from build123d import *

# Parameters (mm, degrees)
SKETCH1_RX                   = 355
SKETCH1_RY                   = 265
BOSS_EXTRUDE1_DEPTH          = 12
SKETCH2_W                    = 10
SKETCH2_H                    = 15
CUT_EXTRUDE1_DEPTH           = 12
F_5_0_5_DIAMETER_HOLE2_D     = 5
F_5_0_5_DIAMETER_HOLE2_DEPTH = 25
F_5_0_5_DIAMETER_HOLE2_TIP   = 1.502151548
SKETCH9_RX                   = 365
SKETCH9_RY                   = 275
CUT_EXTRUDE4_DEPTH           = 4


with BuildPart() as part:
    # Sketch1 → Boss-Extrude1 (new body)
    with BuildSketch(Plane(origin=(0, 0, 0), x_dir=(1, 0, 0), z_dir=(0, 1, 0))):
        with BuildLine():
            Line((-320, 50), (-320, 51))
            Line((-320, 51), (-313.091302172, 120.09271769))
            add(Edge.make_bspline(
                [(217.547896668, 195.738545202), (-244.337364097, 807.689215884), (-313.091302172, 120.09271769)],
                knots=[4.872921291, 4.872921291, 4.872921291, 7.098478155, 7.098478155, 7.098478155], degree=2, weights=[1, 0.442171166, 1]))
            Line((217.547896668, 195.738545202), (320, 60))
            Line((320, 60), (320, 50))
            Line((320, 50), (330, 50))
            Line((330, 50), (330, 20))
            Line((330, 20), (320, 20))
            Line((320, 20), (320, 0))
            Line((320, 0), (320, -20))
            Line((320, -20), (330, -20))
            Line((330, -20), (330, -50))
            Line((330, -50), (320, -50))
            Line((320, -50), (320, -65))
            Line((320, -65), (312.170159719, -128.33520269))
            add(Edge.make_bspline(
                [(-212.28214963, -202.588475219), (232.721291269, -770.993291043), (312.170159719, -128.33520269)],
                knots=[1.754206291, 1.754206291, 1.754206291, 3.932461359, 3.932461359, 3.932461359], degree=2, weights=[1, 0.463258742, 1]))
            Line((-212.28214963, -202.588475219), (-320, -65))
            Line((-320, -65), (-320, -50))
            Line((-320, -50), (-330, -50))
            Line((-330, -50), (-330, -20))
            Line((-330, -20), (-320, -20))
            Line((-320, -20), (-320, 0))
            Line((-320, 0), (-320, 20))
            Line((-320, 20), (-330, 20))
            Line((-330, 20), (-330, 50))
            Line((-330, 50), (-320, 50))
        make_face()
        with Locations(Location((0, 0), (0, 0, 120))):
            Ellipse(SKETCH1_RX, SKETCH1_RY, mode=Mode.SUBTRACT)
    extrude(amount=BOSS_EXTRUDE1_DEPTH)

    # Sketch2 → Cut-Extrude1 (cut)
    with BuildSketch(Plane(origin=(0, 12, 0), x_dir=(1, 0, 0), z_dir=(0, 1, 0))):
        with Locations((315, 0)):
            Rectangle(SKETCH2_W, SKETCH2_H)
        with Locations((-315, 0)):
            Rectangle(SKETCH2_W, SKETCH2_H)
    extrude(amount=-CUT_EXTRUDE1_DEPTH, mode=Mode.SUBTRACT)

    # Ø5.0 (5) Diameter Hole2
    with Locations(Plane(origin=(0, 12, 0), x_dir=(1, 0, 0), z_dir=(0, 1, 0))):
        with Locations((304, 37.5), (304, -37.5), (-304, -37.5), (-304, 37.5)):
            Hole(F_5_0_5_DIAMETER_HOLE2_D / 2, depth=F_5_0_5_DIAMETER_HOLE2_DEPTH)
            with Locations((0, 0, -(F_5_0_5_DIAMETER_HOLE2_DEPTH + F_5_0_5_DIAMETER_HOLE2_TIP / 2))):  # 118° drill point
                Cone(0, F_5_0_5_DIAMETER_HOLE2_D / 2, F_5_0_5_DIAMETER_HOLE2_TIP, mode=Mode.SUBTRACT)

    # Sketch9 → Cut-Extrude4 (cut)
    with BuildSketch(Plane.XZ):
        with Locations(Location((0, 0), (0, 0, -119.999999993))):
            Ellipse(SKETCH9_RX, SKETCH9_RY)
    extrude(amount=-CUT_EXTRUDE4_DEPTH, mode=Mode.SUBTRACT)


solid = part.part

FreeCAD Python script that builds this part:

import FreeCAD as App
import Part
import Sketcher
from FreeCAD import Vector

doc = App.newDocument("Part")
body = doc.addObject("PartDesign::Body", "Body")

# Sketch on XZ plane
sketch1 = body.newObject("Sketcher::SketchObject", "Sketch")
sketch1.AttachmentSupport = (doc.getObject("XZ_Plane"), [""])
sketch1.MapMode = "FlatFace"
sketch1.addGeometry([
    Part.LineSegment(Vector(-320, -51, 0), Vector(-320, -50, 0)),  # 0
    Part.LineSegment(Vector(-320, -50, 0), Vector(-330, -50, 0)),  # 1
    Part.LineSegment(Vector(-330, -50, 0), Vector(-330, -20, 0)),  # 2
    Part.LineSegment(Vector(-330, -20, 0), Vector(-320, -20, 0)),  # 3
    Part.LineSegment(Vector(-320, -20, 0), Vector(-320, 20, 0)),  # 4
    Part.LineSegment(Vector(-320, 20, 0), Vector(-330, 20, 0)),  # 5
    Part.LineSegment(Vector(-330, 20, 0), Vector(-330, 50, 0)),  # 6
    Part.LineSegment(Vector(-330, 50, 0), Vector(-320, 50, 0)),  # 7
    Part.LineSegment(Vector(-320, 50, 0), Vector(-320, 65, 0)),  # 8
    Part.LineSegment(Vector(-320, 65, 0), Vector(-212.28215, 202.588475, 0)),  # 9
    Part.BSplineCurve([Vector(-212.28215, 202.588475, 0), Vector(232.721291, 770.993291, 0), Vector(312.17016, 128.335203, 0)], [3, 3], [1.754206291, 3.932461359], False, 2, [1, 0.463258742, 1], False),  # 10
    Part.LineSegment(Vector(312.17016, 128.335203, 0), Vector(320, 65, 0)),  # 11
    Part.LineSegment(Vector(320, 65, 0), Vector(320, 50, 0)),  # 12
    Part.LineSegment(Vector(320, 50, 0), Vector(330, 50, 0)),  # 13
    Part.LineSegment(Vector(330, 50, 0), Vector(330, 20, 0)),  # 14
    Part.LineSegment(Vector(330, 20, 0), Vector(320, 20, 0)),  # 15
    Part.LineSegment(Vector(320, 20, 0), Vector(320, -20, 0)),  # 16
    Part.LineSegment(Vector(320, -20, 0), Vector(330, -20, 0)),  # 17
    Part.LineSegment(Vector(330, -20, 0), Vector(330, -50, 0)),  # 18
    Part.LineSegment(Vector(330, -50, 0), Vector(320, -50, 0)),  # 19
    Part.LineSegment(Vector(320, -50, 0), Vector(320, -60, 0)),  # 20
    Part.LineSegment(Vector(320, -60, 0), Vector(217.547897, -195.738545, 0)),  # 21
    Part.BSplineCurve([Vector(217.547897, -195.738545, 0), Vector(-244.337364, -807.689216, 0), Vector(-313.091302, -120.092718, 0)], [3, 3], [4.872921291, 7.098478155], False, 2, [1, 0.442171166, 1], False),  # 22
    Part.LineSegment(Vector(-313.091302, -120.092718, 0), Vector(-320, -51, 0)),  # 23
    Part.Ellipse(Vector(-177.5, -307.439018, 0), Vector(229.496732, -132.5, 0), Vector(0, 0, 0)),  # 24
], False)
sketch1.addConstraint([
    Sketcher.Constraint("Block", 10),
    Sketcher.Constraint("Block", 22),
    Sketcher.Constraint("Block", 24),
    Sketcher.Constraint("Coincident", 0, 2, 1, 1),
    Sketcher.Constraint("Coincident", 1, 2, 2, 1),
    Sketcher.Constraint("Coincident", 2, 2, 3, 1),
    Sketcher.Constraint("Coincident", 3, 2, 4, 1),
    Sketcher.Constraint("Coincident", 4, 2, 5, 1),
    Sketcher.Constraint("Coincident", 5, 2, 6, 1),
    Sketcher.Constraint("Coincident", 6, 2, 7, 1),
    Sketcher.Constraint("Coincident", 7, 2, 8, 1),
    Sketcher.Constraint("Coincident", 8, 2, 9, 1),
    Sketcher.Constraint("Coincident", 9, 2, 10, 1),
    Sketcher.Constraint("Coincident", 10, 2, 11, 1),
    Sketcher.Constraint("Coincident", 11, 2, 12, 1),
    Sketcher.Constraint("Coincident", 12, 2, 13, 1),
    Sketcher.Constraint("Coincident", 13, 2, 14, 1),
    Sketcher.Constraint("Coincident", 14, 2, 15, 1),
    Sketcher.Constraint("Coincident", 15, 2, 16, 1),
    Sketcher.Constraint("Coincident", 16, 2, 17, 1),
    Sketcher.Constraint("Coincident", 17, 2, 18, 1),
    Sketcher.Constraint("Coincident", 18, 2, 19, 1),
    Sketcher.Constraint("Coincident", 19, 2, 20, 1),
    Sketcher.Constraint("Coincident", 20, 2, 21, 1),
    Sketcher.Constraint("Coincident", 21, 2, 22, 1),
    Sketcher.Constraint("Coincident", 22, 2, 23, 1),
    Sketcher.Constraint("Coincident", 23, 2, 0, 1),
    Sketcher.Constraint("Vertical", 0),
    Sketcher.Constraint("Horizontal", 1),
    Sketcher.Constraint("Vertical", 2),
    Sketcher.Constraint("Horizontal", 3),
    Sketcher.Constraint("Vertical", 4),
    Sketcher.Constraint("Horizontal", 5),
    Sketcher.Constraint("Vertical", 6),
    Sketcher.Constraint("Horizontal", 7),
    Sketcher.Constraint("Vertical", 8),
    Sketcher.Constraint("Vertical", 12),
    Sketcher.Constraint("Horizontal", 13),
    Sketcher.Constraint("Vertical", 14),
    Sketcher.Constraint("Horizontal", 15),
    Sketcher.Constraint("Vertical", 16),
    Sketcher.Constraint("Horizontal", 17),
    Sketcher.Constraint("Vertical", 18),
    Sketcher.Constraint("Horizontal", 19),
    Sketcher.Constraint("Vertical", 20),
    Sketcher.Constraint("Symmetric", 0, 2, 12, 2, -1, 1),
    Sketcher.Constraint("Symmetric", 2, 2, 14, 2, -1, 1),
    Sketcher.Constraint("Symmetric", 4, 2, 16, 2, -1, 1),
    Sketcher.Constraint("Symmetric", 6, 2, 18, 2, -1, 1),
    Sketcher.Constraint("Symmetric", 8, 2, 11, 2, -2),
    Sketcher.Constraint("Symmetric", 6, 2, 13, 2, -2),
    Sketcher.Constraint("Horizontal", 5, 2, 14, 2),
    Sketcher.Constraint("Vertical", 0, 2, 3, 2),
    Sketcher.Constraint("Vertical", 16, 2, 19, 2),
    Sketcher.Constraint("Equal", 19, 20),
    Sketcher.Constraint("DistanceX", 1, 2, 1, 1, 10.0),
    Sketcher.Constraint("DistanceY", 0, 1, 0, 2, 1.0),
    Sketcher.Constraint("DistanceY", 2, 1, 2, 2, 30.0),
    Sketcher.Constraint("DistanceY", 4, 1, 4, 2, 40.0),
    Sketcher.Constraint("DistanceY", 8, 1, 8, 2, 15.0),
    Sketcher.Constraint("DistanceX", 0, 2, -1, 1, 320.0),
])
pad1 = body.newObject("PartDesign::Pad", "Pad")
pad1.Profile = sketch1
pad1.Length = 12
pad1.Reversed = True

# Sketch on XZ plane
sketch2 = body.newObject("Sketcher::SketchObject", "Sketch001")
sketch2.AttachmentSupport = (doc.getObject("XZ_Plane"), [""])
sketch2.MapMode = "FlatFace"
sketch2.AttachmentOffset = App.Placement(Vector(0, 0, -12), App.Rotation())
sketch2.addGeometry([
    Part.LineSegment(Vector(310, -7.5, 0), Vector(310, 7.5, 0)),  # 0
    Part.LineSegment(Vector(310, 7.5, 0), Vector(320, 7.5, 0)),  # 1
    Part.LineSegment(Vector(320, 7.5, 0), Vector(320, -7.5, 0)),  # 2
    Part.LineSegment(Vector(320, -7.5, 0), Vector(310, -7.5, 0)),  # 3
    Part.LineSegment(Vector(-320, -7.5, 0), Vector(-320, 7.5, 0)),  # 4
    Part.LineSegment(Vector(-320, 7.5, 0), Vector(-310, 7.5, 0)),  # 5
    Part.LineSegment(Vector(-310, 7.5, 0), Vector(-310, -7.5, 0)),  # 6
    Part.LineSegment(Vector(-310, -7.5, 0), Vector(-320, -7.5, 0)),  # 7
], False)
sketch2.addConstraint([
    Sketcher.Constraint("Coincident", 0, 2, 1, 1),
    Sketcher.Constraint("Coincident", 1, 2, 2, 1),
    Sketcher.Constraint("Coincident", 2, 2, 3, 1),
    Sketcher.Constraint("Coincident", 3, 2, 0, 1),
    Sketcher.Constraint("Coincident", 4, 2, 5, 1),
    Sketcher.Constraint("Coincident", 5, 2, 6, 1),
    Sketcher.Constraint("Coincident", 6, 2, 7, 1),
    Sketcher.Constraint("Coincident", 7, 2, 4, 1),
    Sketcher.Constraint("Vertical", 0),
    Sketcher.Constraint("Horizontal", 1),
    Sketcher.Constraint("Vertical", 2),
    Sketcher.Constraint("Horizontal", 3),
    Sketcher.Constraint("Vertical", 4),
    Sketcher.Constraint("Horizontal", 5),
    Sketcher.Constraint("Vertical", 6),
    Sketcher.Constraint("Horizontal", 7),
    Sketcher.Constraint("Symmetric", 2, 2, 4, 2, -1, 1),
    Sketcher.Constraint("Symmetric", 0, 2, 6, 2, -1, 1),
    Sketcher.Constraint("Horizontal", 1, 2, 4, 2),
    Sketcher.Constraint("DistanceX", 1, 1, 1, 2, 10.0),
    Sketcher.Constraint("DistanceY", 0, 1, 0, 2, 15.0),
    Sketcher.Constraint("DistanceX", -1, 1, 0, 2, 310.0),
])
pocket1 = body.newObject("PartDesign::Pocket", "Pocket")
pocket1.Profile = sketch2
pocket1.Length = 12
pocket1.Reversed = True

# Sketch on XZ plane
sketch3 = body.newObject("Sketcher::SketchObject", "Sketch002")
sketch3.AttachmentSupport = (doc.getObject("XZ_Plane"), [""])
sketch3.MapMode = "FlatFace"
sketch3.AttachmentOffset = App.Placement(Vector(0, 0, -12), App.Rotation())
sketch3.addGeometry([
    Part.Circle(Vector(304, -37.5, 0), Vector(0, 0, 1), 2.5),
    Part.Circle(Vector(304, 37.5, 0), Vector(0, 0, 1), 2.5),
    Part.Circle(Vector(-304, 37.5, 0), Vector(0, 0, 1), 2.5),
    Part.Circle(Vector(-304, -37.5, 0), Vector(0, 0, 1), 2.5),
], False)
sketch3.addConstraint([
    Sketcher.Constraint("Equal", 0, 1),
    Sketcher.Constraint("Equal", 1, 2),
    Sketcher.Constraint("Equal", 2, 3),
    Sketcher.Constraint("Symmetric", 0, 3, 2, 3, -1, 1),
    Sketcher.Constraint("Symmetric", 1, 3, 3, 3, -1, 1),
    Sketcher.Constraint("Symmetric", 1, 3, 2, 3, -2),
    Sketcher.Constraint("Diameter", 0, 5.0),
    Sketcher.Constraint("DistanceX", -1, 1, 0, 3, 304.0),
    Sketcher.Constraint("DistanceY", 0, 3, 1, 3, 75.0),
])
doc.recompute()
hole = body.newObject("PartDesign::Hole", "Hole")
hole.Profile = sketch3
hole.ThreadType = "None"
hole.Diameter = 5
hole.DepthType = "Dimension"
hole.Depth = 25
hole.DrillPoint = "Angled"
hole.DrillPointAngle = 118
hole.Reversed = True

# Sketch on XZ plane
sketch4 = body.newObject("Sketcher::SketchObject", "Sketch003")
sketch4.AttachmentSupport = (doc.getObject("XZ_Plane"), [""])
sketch4.MapMode = "FlatFace"
sketch4.addGeometry(Part.Ellipse(Vector(-182.5, -316.099272, 0), Vector(238.156986, -137.5, 0), Vector(0, 0, 0)), False)
sketch4.addConstraint(Sketcher.Constraint("Block", 0))
pocket2 = body.newObject("PartDesign::Pocket", "Pocket001")
pocket2.Profile = sketch4
pocket2.Length = 4

doc.recompute()
